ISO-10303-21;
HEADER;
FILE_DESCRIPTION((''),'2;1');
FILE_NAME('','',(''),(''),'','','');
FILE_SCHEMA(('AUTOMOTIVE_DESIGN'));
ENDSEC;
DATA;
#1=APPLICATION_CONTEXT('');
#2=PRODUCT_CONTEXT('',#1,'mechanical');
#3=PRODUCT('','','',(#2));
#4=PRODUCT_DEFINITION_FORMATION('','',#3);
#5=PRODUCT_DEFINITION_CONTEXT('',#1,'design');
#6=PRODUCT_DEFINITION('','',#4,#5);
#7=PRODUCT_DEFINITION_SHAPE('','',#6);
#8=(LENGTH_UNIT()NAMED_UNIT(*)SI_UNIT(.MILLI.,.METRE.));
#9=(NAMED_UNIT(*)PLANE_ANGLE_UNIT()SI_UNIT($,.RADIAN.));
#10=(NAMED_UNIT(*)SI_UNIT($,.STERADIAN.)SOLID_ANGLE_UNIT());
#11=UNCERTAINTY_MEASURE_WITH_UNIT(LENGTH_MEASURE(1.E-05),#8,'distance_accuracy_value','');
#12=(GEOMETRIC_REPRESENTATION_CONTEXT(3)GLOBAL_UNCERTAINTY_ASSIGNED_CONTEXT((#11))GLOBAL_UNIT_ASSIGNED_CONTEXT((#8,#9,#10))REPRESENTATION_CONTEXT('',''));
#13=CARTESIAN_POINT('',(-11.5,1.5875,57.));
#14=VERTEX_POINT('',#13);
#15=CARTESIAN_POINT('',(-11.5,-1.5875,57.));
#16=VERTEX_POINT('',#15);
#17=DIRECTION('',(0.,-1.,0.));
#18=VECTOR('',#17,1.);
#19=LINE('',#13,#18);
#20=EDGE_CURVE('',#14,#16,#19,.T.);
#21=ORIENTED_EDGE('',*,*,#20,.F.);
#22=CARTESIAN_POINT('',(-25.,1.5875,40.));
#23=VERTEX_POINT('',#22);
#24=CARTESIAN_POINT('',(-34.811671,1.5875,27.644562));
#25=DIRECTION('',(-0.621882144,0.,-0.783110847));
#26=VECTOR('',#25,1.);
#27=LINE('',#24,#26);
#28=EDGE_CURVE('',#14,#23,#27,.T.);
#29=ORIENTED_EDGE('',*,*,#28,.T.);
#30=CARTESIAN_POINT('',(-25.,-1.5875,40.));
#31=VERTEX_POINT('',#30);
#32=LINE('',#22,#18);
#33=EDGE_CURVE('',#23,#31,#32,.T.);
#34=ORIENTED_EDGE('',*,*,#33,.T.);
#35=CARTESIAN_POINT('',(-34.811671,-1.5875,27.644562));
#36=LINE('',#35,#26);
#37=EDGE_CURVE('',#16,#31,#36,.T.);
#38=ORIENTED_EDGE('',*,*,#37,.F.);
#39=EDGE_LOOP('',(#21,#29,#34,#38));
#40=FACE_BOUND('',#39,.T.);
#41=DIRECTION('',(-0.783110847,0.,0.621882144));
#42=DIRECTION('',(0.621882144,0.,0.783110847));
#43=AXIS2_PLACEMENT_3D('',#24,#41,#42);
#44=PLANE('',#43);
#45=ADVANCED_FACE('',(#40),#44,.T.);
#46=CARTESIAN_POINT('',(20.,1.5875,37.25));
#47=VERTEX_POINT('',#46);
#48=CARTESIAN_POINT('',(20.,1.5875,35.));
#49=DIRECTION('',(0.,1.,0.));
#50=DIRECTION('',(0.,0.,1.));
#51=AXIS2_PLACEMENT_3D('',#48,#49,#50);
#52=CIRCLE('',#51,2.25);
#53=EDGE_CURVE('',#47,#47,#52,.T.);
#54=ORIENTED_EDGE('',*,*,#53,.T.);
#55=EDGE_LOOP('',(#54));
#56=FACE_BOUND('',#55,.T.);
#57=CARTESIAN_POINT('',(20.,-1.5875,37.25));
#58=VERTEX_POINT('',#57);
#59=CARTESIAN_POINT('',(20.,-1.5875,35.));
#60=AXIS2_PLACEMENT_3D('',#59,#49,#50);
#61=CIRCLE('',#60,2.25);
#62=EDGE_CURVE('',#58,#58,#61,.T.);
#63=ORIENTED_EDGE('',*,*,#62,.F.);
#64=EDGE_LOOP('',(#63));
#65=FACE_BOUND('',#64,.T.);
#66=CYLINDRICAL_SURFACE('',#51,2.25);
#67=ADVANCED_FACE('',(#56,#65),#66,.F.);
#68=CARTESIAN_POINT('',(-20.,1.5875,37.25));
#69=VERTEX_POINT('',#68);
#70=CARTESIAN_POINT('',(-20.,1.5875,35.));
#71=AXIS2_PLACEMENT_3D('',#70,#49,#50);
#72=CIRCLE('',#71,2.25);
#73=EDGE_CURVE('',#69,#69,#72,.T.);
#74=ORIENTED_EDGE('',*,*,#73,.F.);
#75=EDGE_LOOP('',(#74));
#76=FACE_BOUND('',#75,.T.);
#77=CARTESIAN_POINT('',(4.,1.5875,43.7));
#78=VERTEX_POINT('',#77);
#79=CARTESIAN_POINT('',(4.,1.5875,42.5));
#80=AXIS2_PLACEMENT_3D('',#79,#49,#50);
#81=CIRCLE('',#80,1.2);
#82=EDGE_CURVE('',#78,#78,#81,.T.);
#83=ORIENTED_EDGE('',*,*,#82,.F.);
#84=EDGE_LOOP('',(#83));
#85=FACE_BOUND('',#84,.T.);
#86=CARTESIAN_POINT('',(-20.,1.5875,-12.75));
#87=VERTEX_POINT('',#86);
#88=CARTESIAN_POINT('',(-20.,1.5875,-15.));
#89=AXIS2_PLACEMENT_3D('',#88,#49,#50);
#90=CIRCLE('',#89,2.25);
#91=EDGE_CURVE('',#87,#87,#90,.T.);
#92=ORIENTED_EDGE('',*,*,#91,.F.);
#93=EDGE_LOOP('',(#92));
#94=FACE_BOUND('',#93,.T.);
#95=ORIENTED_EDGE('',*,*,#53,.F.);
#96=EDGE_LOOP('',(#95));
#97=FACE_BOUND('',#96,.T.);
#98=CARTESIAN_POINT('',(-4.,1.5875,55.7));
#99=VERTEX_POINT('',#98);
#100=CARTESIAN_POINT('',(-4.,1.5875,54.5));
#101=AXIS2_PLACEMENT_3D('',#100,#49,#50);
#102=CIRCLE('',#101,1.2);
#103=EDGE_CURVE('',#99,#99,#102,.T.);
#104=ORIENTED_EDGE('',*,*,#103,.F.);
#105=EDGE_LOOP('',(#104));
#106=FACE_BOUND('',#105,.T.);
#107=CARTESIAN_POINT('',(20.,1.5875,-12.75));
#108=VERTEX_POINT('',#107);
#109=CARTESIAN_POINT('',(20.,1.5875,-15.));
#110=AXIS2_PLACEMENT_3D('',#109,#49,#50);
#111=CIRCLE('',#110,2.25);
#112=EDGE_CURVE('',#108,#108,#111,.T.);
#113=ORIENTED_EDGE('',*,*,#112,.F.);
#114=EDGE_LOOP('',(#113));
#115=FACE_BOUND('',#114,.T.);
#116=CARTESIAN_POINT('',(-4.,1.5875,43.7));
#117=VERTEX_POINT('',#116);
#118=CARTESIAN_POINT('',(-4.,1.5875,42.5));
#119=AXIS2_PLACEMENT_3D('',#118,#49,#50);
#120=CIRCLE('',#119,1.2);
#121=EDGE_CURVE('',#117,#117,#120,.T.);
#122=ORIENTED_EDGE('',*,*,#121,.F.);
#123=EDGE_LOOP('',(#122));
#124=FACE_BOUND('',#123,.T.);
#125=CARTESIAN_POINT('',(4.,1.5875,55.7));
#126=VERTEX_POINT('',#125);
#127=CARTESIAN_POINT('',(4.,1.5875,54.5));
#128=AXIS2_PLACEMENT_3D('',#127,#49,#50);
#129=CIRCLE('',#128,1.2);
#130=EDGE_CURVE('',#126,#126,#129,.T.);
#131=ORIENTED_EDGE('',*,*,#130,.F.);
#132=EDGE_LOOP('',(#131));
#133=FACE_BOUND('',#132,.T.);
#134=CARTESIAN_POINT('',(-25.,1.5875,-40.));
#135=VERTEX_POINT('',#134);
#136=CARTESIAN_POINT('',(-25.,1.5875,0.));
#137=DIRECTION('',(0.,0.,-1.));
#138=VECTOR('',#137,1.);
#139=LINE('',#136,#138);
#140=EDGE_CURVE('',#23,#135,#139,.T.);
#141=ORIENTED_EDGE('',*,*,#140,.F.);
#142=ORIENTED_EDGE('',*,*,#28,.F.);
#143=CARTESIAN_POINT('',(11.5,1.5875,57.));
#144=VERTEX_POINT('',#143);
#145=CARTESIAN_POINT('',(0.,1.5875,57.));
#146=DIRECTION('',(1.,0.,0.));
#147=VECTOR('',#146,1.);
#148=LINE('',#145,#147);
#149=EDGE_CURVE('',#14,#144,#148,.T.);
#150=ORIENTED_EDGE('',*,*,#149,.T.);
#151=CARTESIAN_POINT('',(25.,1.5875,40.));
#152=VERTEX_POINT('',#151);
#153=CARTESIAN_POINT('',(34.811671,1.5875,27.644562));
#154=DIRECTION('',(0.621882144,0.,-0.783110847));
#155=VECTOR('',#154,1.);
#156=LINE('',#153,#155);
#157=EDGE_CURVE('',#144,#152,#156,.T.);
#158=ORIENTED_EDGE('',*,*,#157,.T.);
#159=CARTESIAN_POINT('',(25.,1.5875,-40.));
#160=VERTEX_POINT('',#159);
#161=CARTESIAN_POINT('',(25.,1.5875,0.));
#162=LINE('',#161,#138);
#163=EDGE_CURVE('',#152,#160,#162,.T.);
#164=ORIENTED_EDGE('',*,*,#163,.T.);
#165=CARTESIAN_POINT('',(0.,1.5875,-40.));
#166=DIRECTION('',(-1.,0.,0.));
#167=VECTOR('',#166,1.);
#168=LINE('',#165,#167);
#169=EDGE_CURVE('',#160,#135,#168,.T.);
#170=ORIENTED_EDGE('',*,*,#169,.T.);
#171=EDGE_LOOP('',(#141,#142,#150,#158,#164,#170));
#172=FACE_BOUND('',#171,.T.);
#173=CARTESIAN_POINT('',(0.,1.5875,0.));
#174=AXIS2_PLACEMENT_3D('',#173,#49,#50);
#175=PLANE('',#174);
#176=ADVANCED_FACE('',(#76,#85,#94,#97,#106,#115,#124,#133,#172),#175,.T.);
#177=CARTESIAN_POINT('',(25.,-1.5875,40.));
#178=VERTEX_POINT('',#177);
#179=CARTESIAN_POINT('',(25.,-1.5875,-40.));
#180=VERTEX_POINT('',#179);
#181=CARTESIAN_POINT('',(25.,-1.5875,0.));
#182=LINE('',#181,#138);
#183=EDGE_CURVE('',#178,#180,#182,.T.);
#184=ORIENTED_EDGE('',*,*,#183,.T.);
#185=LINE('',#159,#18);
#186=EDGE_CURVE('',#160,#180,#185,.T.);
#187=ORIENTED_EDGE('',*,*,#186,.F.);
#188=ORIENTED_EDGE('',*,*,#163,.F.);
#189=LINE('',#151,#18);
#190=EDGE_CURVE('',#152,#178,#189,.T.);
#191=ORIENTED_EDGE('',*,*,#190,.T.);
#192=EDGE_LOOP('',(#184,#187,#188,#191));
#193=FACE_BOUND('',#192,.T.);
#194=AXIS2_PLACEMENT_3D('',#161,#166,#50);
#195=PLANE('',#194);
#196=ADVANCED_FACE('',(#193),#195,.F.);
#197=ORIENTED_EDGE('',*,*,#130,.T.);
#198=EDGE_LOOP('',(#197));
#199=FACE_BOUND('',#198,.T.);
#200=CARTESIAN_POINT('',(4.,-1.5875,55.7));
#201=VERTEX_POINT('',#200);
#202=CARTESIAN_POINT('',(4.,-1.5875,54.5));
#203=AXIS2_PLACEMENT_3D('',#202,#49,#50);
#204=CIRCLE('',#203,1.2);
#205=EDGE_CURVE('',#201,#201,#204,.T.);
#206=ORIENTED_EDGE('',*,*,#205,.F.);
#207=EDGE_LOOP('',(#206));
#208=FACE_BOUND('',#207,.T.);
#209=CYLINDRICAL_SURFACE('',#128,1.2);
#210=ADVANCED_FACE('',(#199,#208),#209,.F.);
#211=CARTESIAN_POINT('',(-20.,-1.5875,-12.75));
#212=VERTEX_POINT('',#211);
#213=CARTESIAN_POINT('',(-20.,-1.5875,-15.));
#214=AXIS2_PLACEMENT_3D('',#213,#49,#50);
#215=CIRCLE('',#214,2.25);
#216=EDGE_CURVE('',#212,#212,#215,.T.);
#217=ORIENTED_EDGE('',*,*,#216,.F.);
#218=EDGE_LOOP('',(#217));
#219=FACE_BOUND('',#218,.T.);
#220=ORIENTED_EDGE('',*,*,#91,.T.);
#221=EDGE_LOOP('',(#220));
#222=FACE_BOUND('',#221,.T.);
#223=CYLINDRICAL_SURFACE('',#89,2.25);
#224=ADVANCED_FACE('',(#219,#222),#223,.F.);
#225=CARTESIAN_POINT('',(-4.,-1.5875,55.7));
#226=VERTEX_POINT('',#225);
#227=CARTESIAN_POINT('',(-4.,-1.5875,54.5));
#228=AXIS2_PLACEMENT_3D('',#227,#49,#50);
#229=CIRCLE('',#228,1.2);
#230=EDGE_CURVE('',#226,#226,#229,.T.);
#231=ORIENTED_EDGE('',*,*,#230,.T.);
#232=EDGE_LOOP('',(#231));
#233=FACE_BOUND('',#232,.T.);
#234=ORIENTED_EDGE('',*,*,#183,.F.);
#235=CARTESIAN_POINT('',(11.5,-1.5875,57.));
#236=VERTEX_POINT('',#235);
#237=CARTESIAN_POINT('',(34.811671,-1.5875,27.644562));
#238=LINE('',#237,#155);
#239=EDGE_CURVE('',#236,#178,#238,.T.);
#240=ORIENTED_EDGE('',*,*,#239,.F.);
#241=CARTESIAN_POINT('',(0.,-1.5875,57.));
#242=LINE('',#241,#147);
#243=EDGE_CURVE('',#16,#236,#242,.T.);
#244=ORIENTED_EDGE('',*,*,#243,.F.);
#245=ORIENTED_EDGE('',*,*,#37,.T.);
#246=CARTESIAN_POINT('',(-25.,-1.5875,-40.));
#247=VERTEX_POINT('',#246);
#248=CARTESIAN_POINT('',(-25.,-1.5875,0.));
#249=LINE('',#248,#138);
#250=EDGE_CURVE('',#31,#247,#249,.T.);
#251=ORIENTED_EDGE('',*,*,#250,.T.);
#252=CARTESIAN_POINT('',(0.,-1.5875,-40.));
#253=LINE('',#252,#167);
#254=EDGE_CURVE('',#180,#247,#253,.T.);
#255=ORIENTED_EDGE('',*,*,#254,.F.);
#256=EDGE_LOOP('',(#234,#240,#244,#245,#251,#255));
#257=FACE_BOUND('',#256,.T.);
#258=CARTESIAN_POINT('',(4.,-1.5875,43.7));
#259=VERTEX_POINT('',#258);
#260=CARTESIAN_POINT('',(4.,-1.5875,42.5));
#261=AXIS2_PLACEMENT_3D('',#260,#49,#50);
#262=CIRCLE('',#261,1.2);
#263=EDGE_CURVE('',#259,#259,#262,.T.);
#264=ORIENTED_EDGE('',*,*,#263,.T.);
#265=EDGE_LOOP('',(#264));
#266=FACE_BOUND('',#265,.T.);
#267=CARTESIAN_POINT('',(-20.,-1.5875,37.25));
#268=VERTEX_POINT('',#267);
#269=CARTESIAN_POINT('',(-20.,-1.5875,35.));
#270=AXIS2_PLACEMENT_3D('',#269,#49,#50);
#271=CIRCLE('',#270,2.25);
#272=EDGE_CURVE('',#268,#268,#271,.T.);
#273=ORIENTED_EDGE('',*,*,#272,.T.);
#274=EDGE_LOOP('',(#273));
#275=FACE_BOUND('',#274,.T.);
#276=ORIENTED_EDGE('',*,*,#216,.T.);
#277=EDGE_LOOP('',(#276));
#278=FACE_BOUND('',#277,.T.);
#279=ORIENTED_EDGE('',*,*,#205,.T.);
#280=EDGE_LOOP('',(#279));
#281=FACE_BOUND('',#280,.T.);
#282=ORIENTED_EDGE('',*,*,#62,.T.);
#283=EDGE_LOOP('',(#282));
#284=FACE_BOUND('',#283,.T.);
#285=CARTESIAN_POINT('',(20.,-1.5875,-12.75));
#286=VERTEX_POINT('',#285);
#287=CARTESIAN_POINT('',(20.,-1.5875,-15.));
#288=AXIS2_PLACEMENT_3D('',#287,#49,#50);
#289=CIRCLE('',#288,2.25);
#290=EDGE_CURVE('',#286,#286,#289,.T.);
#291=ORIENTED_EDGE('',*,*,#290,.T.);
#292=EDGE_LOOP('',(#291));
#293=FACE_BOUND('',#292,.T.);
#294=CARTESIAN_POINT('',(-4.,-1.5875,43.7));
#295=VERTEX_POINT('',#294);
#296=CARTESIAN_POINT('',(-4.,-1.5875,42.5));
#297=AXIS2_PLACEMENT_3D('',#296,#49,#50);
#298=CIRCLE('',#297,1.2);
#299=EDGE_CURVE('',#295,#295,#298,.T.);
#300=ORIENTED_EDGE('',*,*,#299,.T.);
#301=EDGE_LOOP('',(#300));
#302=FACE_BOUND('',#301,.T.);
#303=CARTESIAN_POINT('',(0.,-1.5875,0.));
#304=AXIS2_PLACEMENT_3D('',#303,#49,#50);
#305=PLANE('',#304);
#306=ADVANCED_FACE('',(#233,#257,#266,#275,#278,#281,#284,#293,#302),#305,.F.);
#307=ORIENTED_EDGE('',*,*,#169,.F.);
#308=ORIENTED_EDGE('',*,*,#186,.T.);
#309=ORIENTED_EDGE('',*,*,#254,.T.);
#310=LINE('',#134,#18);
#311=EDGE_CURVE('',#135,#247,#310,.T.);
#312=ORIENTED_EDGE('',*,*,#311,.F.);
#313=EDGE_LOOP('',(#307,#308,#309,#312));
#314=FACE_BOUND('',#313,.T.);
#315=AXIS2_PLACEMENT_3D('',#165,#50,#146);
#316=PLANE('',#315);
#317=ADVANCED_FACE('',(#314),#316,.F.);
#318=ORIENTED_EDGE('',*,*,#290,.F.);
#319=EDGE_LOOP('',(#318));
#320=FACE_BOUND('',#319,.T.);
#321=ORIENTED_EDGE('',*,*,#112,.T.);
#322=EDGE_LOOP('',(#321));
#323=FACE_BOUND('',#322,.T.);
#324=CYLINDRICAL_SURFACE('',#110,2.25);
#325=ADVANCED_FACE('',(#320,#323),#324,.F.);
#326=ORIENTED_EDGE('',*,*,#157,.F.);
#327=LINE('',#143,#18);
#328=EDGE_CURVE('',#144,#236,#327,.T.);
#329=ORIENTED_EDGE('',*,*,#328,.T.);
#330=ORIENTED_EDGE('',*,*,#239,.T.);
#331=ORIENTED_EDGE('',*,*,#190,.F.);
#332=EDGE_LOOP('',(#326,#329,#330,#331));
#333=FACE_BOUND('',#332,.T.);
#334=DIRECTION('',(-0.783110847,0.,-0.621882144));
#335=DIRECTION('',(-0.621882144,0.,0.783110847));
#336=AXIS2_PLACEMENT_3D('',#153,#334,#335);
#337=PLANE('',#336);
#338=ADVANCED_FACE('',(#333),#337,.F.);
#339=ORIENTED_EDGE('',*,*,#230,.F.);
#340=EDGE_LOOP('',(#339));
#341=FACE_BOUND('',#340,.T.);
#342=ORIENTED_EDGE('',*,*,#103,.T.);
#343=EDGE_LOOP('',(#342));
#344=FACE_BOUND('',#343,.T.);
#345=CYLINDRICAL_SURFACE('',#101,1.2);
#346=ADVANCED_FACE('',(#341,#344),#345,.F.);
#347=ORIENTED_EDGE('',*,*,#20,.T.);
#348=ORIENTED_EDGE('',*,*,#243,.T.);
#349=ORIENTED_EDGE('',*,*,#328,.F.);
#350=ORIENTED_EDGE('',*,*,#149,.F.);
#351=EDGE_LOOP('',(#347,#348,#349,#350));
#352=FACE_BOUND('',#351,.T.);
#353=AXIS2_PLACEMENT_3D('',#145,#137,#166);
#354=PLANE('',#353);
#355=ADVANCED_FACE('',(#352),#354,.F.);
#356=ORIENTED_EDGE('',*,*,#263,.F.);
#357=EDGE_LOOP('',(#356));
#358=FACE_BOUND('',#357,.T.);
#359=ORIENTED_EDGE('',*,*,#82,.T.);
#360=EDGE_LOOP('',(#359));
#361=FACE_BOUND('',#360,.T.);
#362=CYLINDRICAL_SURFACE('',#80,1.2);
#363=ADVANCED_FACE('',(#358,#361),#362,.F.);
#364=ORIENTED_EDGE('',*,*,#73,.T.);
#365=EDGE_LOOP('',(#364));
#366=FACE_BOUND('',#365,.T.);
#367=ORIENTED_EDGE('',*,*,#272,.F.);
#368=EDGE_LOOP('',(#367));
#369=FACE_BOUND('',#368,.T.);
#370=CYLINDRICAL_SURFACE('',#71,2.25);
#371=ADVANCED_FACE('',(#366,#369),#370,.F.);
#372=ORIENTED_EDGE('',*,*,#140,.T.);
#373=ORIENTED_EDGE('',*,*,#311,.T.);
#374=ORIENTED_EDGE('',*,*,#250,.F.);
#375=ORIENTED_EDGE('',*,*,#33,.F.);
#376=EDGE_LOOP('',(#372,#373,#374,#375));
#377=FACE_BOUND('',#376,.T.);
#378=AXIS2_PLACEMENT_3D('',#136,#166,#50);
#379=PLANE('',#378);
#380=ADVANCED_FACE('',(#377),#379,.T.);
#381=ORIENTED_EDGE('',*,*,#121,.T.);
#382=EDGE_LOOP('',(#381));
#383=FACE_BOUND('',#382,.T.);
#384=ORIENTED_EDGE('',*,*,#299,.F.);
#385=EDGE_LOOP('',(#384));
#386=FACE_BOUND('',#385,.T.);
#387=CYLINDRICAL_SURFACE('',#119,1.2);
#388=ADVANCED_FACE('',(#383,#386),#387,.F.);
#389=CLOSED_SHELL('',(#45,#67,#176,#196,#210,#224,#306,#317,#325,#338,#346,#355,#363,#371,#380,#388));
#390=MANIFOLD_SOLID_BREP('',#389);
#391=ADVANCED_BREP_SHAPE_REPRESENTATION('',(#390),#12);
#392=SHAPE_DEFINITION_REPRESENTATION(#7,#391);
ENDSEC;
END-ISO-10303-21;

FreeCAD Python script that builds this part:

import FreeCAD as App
import Part
import Sketcher
Q = App.Units.Quantity

doc = App.newDocument("Part")
params = doc.addObject("Spreadsheet::Sheet", "Params")
for row, (alias, value) in enumerate([
    ("sketch1_width", "23 mm"),
    ("sketch1_width2", "50 mm"),
    ("sketch1_height", "80 mm"),
    ("pad1_length", "3.175 mm"),
    ("sketch2_diameter", "2.4 mm"),
    ("hole_diameter", "2.4 mm"),
    ("sketch3_diameter", "4.5 mm"),
    ("hole2_diameter", "4.5 mm"),
], start=1):
    params.set(f"A{row}", alias)
    params.set(f"B{row}", "=" + value)
    params.setAlias(f"B{row}", alias)

body = doc.addObject("PartDesign::Body", "Body")

sketch1 = body.newObject("Sketcher::SketchObject", "Sketch")
sketch1.AttachmentSupport = (doc.getObject("XZ_Plane"), [""])
sketch1.MapMode = "FlatFace"
sketch1.addGeometry([
    Part.LineSegment(App.Vector(-25, 40, 0), App.Vector(-12, 57, 0)),
    Part.LineSegment(App.Vector(-12, 57, 0), App.Vector(12, 57, 0)),
    Part.LineSegment(App.Vector(12, 57, 0), App.Vector(25, 40, 0)),
    Part.LineSegment(App.Vector(25, 40, 0), App.Vector(25, -40, 0)),
    Part.LineSegment(App.Vector(25, -40, 0), App.Vector(-25, -40, 0)),
    Part.LineSegment(App.Vector(-25, -40, 0), App.Vector(-25, 40, 0)),
], False)
sketch1.addConstraint([
    Sketcher.Constraint("Coincident", 0, 2, 1, 1),
    Sketcher.Constraint("Coincident", 1, 2, 2, 1),
    Sketcher.Constraint("Coincident", 2, 2, 3, 1),
    Sketcher.Constraint("Coincident", 3, 2, 4, 1),
    Sketcher.Constraint("Coincident", 4, 2, 5, 1),
    Sketcher.Constraint("Coincident", 5, 2, 0, 1),
    Sketcher.Constraint("Horizontal", 1),
    Sketcher.Constraint("Vertical", 3),
    Sketcher.Constraint("Horizontal", 4),
    Sketcher.Constraint("Vertical", 5),
    Sketcher.Constraint("Symmetric", 2, 2, 4, 2, -1, 1),
    Sketcher.Constraint("Horizontal", 2, 2, 5, 2),
    Sketcher.Constraint("Equal", 0, 2),
    Sketcher.Constraint("DistanceX", 1, 1, 1, 2, Q("23 mm")),
    Sketcher.Constraint("DistanceX", 4, 2, 4, 1, Q("50 mm")),
    Sketcher.Constraint("DistanceY", 3, 2, 3, 1, Q("80 mm")),
    Sketcher.Constraint("DistanceY", -1, 1, 0, 2, Q("57 mm")),
])
sketch1.setExpression("Constraints[13]", "Params.sketch1_width")
sketch1.setExpression("Constraints[14]", "Params.sketch1_width2")
sketch1.setExpression("Constraints[15]", "Params.sketch1_height")
pad1 = body.newObject("PartDesign::Pad", "Pad")
pad1.Profile = sketch1
pad1.setExpression("Length", "Params.pad1_length")
pad1.Midplane = True

sketch2 = body.newObject("Sketcher::SketchObject", "Sketch001")
sketch2.AttachmentSupport = (doc.getObject("XZ_Plane"), [""])
sketch2.MapMode = "FlatFace"
sketch2.AttachmentOffset = App.Placement(App.Vector(0, 0, -1.5875), App.Rotation())
sketch2.addGeometry([
    Part.Circle(App.Vector(-4, 54.5, 0), App.Vector(0, 0, 1), 1.2),
    Part.Circle(App.Vector(4, 54.5, 0), App.Vector(0, 0, 1), 1.2),
    Part.Circle(App.Vector(4, 42.5, 0), App.Vector(0, 0, 1), 1.2),
    Part.Circle(App.Vector(-4, 42.5, 0), App.Vector(0, 0, 1), 1.2),
], False)
sketch2.addConstraint([
    Sketcher.Constraint("Equal", 0, 1),
    Sketcher.Constraint("Equal", 1, 2),
    Sketcher.Constraint("Equal", 2, 3),
    Sketcher.Constraint("Symmetric", 0, 3, 1, 3, -2),
    Sketcher.Constraint("Symmetric", 2, 3, 3, 3, -2),
    Sketcher.Constraint("Vertical", 1, 3, 2, 3),
    Sketcher.Constraint("Diameter", 0, Q("2.4 mm")),
    Sketcher.Constraint("DistanceX", 0, 3, -1, 1, Q("4 mm")),
    Sketcher.Constraint("DistanceY", 2, 3, 1, 3, Q("12 mm")),
    Sketcher.Constraint("DistanceY", -1, 1, 0, 3, Q("54.5 mm")),
])
sketch2.setExpression("Constraints[6]", "Params.sketch2_diameter")
doc.recompute()
hole = body.newObject("PartDesign::Hole", "Hole")
hole.Profile = sketch2
hole.ThreadType = "None"
hole.setExpression("Diameter", "Params.hole_diameter")
hole.DepthType = "ThroughAll"
hole.Reversed = True

sketch3 = body.newObject("Sketcher::SketchObject", "Sketch002")
sketch3.AttachmentSupport = (doc.getObject("XZ_Plane"), [""])
sketch3.MapMode = "FlatFace"
sketch3.AttachmentOffset = App.Placement(App.Vector(0, 0, -1.5875), App.Rotation())
sketch3.addGeometry([
    Part.Circle(App.Vector(-20, -15, 0), App.Vector(0, 0, 1), 2.2),
    Part.Circle(App.Vector(20, -15, 0), App.Vector(0, 0, 1), 2.2),
    Part.Circle(App.Vector(20, 35, 0), App.Vector(0, 0, 1), 2.2),
    Part.Circle(App.Vector(-20, 35, 0), App.Vector(0, 0, 1), 2.2),
], False)
sketch3.addConstraint([
    Sketcher.Constraint("Equal", 0, 1),
    Sketcher.Constraint("Equal", 1, 2),
    Sketcher.Constraint("Equal", 2, 3),
    Sketcher.Constraint("Symmetric", 0, 3, 1, 3, -2),
    Sketcher.Constraint("Symmetric", 2, 3, 3, 3, -2),
    Sketcher.Constraint("Vertical", 1, 3, 2, 3),
    Sketcher.Constraint("Diameter", 0, Q("4.5 mm")),
    Sketcher.Constraint("DistanceX", 0, 3, -1, 1, Q("20 mm")),
    Sketcher.Constraint("DistanceY", 0, 3, -1, 1, Q("15 mm")),
    Sketcher.Constraint("DistanceY", -1, 1, 2, 3, Q("35 mm")),
])
sketch3.setExpression("Constraints[6]", "Params.sketch3_diameter")
doc.recompute()
hole2 = body.newObject("PartDesign::Hole", "Hole001")
hole2.Profile = sketch3
hole2.ThreadType = "None"
hole2.setExpression("Diameter", "Params.hole2_diameter")
hole2.DepthType = "ThroughAll"
hole2.Reversed = True

doc.recompute()
